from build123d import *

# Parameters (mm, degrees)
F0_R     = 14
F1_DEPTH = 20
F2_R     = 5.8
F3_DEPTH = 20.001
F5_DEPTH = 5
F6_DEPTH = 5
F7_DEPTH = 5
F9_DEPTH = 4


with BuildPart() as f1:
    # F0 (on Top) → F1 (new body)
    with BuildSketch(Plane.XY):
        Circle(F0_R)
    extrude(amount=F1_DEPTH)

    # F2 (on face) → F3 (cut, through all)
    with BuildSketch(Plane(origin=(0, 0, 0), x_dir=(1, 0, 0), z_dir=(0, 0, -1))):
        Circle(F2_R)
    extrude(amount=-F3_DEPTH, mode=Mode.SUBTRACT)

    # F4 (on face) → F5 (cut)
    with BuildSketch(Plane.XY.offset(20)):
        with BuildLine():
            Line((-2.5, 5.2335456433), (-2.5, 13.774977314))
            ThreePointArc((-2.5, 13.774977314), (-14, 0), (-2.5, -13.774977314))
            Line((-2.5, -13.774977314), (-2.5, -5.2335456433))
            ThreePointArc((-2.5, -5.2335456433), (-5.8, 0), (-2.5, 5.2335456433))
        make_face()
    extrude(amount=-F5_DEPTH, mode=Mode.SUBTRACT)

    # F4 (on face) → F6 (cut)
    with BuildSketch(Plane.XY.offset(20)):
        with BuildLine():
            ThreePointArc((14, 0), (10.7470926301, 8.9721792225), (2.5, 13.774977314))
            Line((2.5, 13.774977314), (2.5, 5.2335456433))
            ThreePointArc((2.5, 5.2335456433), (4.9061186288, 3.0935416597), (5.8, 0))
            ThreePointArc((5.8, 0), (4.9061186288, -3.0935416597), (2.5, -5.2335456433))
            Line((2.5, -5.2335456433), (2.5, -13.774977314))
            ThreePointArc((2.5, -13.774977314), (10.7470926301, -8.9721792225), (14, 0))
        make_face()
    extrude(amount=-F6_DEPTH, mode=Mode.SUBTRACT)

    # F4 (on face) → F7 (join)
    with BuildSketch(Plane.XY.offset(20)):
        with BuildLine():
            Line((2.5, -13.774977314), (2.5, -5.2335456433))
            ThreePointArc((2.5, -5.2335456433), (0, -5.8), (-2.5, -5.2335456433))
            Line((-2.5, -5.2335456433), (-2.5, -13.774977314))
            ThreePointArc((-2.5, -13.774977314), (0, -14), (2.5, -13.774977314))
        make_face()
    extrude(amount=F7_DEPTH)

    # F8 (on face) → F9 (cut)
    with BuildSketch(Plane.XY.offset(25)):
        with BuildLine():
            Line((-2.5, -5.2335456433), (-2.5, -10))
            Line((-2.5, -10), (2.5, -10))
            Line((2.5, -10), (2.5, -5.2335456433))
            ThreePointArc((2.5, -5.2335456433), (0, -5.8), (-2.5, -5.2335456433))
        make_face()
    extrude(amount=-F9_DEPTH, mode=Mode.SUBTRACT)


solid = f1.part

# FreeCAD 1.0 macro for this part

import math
import FreeCAD as App
import Part
import Sketcher

V = App.Vector

doc = App.newDocument("Part")
params = doc.addObject("Spreadsheet::Sheet", "Params")
for row, (alias, value) in enumerate([
    ("sketch1_diameter", "28 mm"),
    ("pad1_length", "20 mm"),
    ("sketch2_diameter", "11.6 mm"),
    ("sketch3_radius", "14 mm"),
    ("sketch3_radius2", "5.8 mm"),
    ("pocket2_length", "5 mm"),
    ("sketch4_radius", "14 mm"),
    ("sketch4_radius2", "5.8 mm"),
    ("pocket3_length", "5 mm"),
    ("sketch5_radius", "14 mm"),
    ("sketch5_radius2", "5.8 mm"),
    ("pad2_length", "5 mm"),
    ("sketch6_radius", "5.8 mm"),
    ("sketch6_width", "5 mm"),
    ("pocket4_length", "4 mm"),
], start=1):
    params.set(f"A{row}", alias)
    params.set(f"B{row}", "=" + value)
    params.setAlias(f"B{row}", alias)

body = doc.addObject("PartDesign::Body", "Body")

sketch1 = doc.addObject("Sketcher::SketchObject", "Sketch")
body.addObject(sketch1)
sketch1.AttachmentSupport = (doc.XY_Plane, [""])
sketch1.MapMode = "FlatFace"
sketch1.addGeometry(Part.Circle(V(0, 0, 0), V(0, 0, 1), 14), False)
sketch1.addConstraint([
    Sketcher.Constraint("Coincident", 0, 3, -1, 1),
    Sketcher.Constraint("Diameter", 0, 28.0),
])
sketch1.setExpression("Constraints[1]", "Params.sketch1_diameter")
pad1 = doc.addObject("PartDesign::Pad", "Pad")
body.addObject(pad1)
pad1.Profile = sketch1
pad1.setExpression("Length", "Params.pad1_length")

sketch2 = doc.addObject("Sketcher::SketchObject", "Sketch001")
body.addObject(sketch2)
sketch2.AttachmentSupport = (doc.XY_Plane, [""])
sketch2.MapMode = "FlatFace"
sketch2.addGeometry(Part.Circle(V(0, 0, 0), V(0, 0, 1), 6), False)
sketch2.addConstraint([
    Sketcher.Constraint("Coincident", 0, 3, -1, 1),
    Sketcher.Constraint("Diameter", 0, 11.6),
])
sketch2.setExpression("Constraints[1]", "Params.sketch2_diameter")
pocket1 = doc.addObject("PartDesign::Pocket", "Pocket")
body.addObject(pocket1)
pocket1.Profile = sketch2
pocket1.Type = "ThroughAll"
pocket1.Reversed = True

sketch3 = doc.addObject("Sketcher::SketchObject", "Sketch002")
body.addObject(sketch3)
sketch3.AttachmentSupport = (doc.XY_Plane, [""])
sketch3.MapMode = "FlatFace"
sketch3.AttachmentOffset = App.Placement(V(0, 0, 20), App.Rotation())
sketch3.addGeometry([
    Part.LineSegment(V(-2, 5, 0), V(-2, 14, 0)),
    Part.ArcOfCircle(Part.Circle(V(0, 0, 0), V(0, 0, 1), 14), math.radians(100), math.radians(260)),
    Part.LineSegment(V(-2, -14, 0), V(-2, -5, 0)),
    Part.ArcOfCircle(Part.Circle(V(0, 0, 0), V(0, 0, 1), 6), math.radians(116), math.radians(244)),
], False)
sketch3.addConstraint([
    Sketcher.Constraint("Coincident", 0, 2, 1, 1),
    Sketcher.Constraint("Coincident", 1, 2, 2, 1),
    Sketcher.Constraint("Coincident", 2, 2, 3, 2),
    Sketcher.Constraint("Coincident", 3, 1, 0, 1),
    Sketcher.Constraint("Vertical", 0),
    Sketcher.Constraint("Vertical", 2),
    Sketcher.Constraint("Coincident", 1, 3, -1, 1),
    Sketcher.Constraint("Coincident", 3, 3, -1, 1),
    Sketcher.Constraint("Vertical", 0, 2, 1, 2),
    Sketcher.Constraint("Radius", 1, 14.0),
    Sketcher.Constraint("Radius", 3, 5.8),
    Sketcher.Constraint("DistanceX", 0, 2, -1, 1, 2.5),
])
sketch3.setExpression("Constraints[9]", "Params.sketch3_radius")
sketch3.setExpression("Constraints[10]", "Params.sketch3_radius2")
pocket2 = doc.addObject("PartDesign::Pocket", "Pocket001")
body.addObject(pocket2)
pocket2.Profile = sketch3
pocket2.setExpression("Length", "Params.pocket2_length")

sketch4 = doc.addObject("Sketcher::SketchObject", "Sketch003")
body.addObject(sketch4)
sketch4.AttachmentSupport = (doc.XY_Plane, [""])
sketch4.MapMode = "FlatFace"
sketch4.AttachmentOffset = App.Placement(V(0, 0, 20), App.Rotation())
sketch4.addGeometry([
    Part.ArcOfCircle(Part.Circle(V(0, 0, 0), V(0, 0, 1), 14), math.radians(0), math.radians(80)),
    Part.LineSegment(V(2, 14, 0), V(2, 5, 0)),
    Part.ArcOfCircle(Part.Circle(V(0, 0, 0), V(0, 0, 1), 6), math.radians(0), math.radians(64)),
    Part.ArcOfCircle(Part.Circle(V(0, 0, 0), V(0, 0, 1), 6), math.radians(-64), math.radians(0)),
    Part.LineSegment(V(2, -5, 0), V(2, -14, 0)),
    Part.ArcOfCircle(Part.Circle(V(0, 0, 0), V(0, 0, 1), 14), math.radians(-80), math.radians(0)),
], False)
sketch4.addConstraint([
    Sketcher.Constraint("Coincident", 0, 2, 1, 1),
    Sketcher.Constraint("Coincident", 1, 2, 2, 2),
    Sketcher.Constraint("Tangent", 2, 1, 3, 2),
    Sketcher.Constraint("Coincident", 3, 1, 4, 1),
    Sketcher.Constraint("Coincident", 4, 2, 5, 1),
    Sketcher.Constraint("Tangent", 5, 2, 0, 1),
    Sketcher.Constraint("Vertical", 1),
    Sketcher.Constraint("Vertical", 4),
    Sketcher.Constraint("Coincident", 0, 3, -1, 1),
    Sketcher.Constraint("Coincident", 2, 3, -1, 1),
    Sketcher.Constraint("Equal", 2, 3),
    Sketcher.Constraint("Equal", 0, 5),
    Sketcher.Constraint("PointOnObject", 2, 1, -1),
    Sketcher.Constraint("PointOnObject", 5, 2, -1),
    Sketcher.Constraint("Vertical", 1, 2, 3, 1),
    Sketcher.Constraint("Radius", 0, 14.0),
    Sketcher.Constraint("Radius", 2, 5.8),
    Sketcher.Constraint("DistanceX", -1, 1, 0, 2, 2.5),
])
sketch4.setExpression("Constraints[15]", "Params.sketch4_radius")
sketch4.setExpression("Constraints[16]", "Params.sketch4_radius2")
pocket3 = doc.addObject("PartDesign::Pocket", "Pocket002")
body.addObject(pocket3)
pocket3.Profile = sketch4
pocket3.setExpression("Length", "Params.pocket3_length")

sketch5 = doc.addObject("Sketcher::SketchObject", "Sketch004")
body.addObject(sketch5)
sketch5.AttachmentSupport = (doc.XY_Plane, [""])
sketch5.MapMode = "FlatFace"
sketch5.AttachmentOffset = App.Placement(V(0, 0, 20), App.Rotation())
sketch5.addGeometry([
    Part.LineSegment(V(2, -14, 0), V(2, -5, 0)),
    Part.ArcOfCircle(Part.Circle(V(0, 0, 0), V(0, 0, 1), 6), math.radians(-116), math.radians(-64)),
    Part.LineSegment(V(-2, -5, 0), V(-2, -14, 0)),
    Part.ArcOfCircle(Part.Circle(V(0, 0, 0), V(0, 0, 1), 14), math.radians(-100), math.radians(-80)),
], False)
sketch5.addConstraint([
    Sketcher.Constraint("Coincident", 0, 2, 1, 2),
    Sketcher.Constraint("Coincident", 1, 1, 2, 1),
    Sketcher.Constraint("Coincident", 2, 2, 3, 1),
    Sketcher.Constraint("Coincident", 3, 2, 0, 1),
    Sketcher.Constraint("Vertical", 0),
    Sketcher.Constraint("Vertical", 2),
    Sketcher.Constraint("Coincident", 1, 3, -1, 1),
    Sketcher.Constraint("Coincident", 3, 3, -1, 1),
    Sketcher.Constraint("Horizontal", 0, 2, 1, 1),
    Sketcher.Constraint("Radius", 3, 14.0),
    Sketcher.Constraint("Radius", 1, 5.8),
    Sketcher.Constraint("DistanceX", 1, 1, 0, 2, 5.0),
])
sketch5.setExpression("Constraints[9]", "Params.sketch5_radius")
sketch5.setExpression("Constraints[10]", "Params.sketch5_radius2")
pad2 = doc.addObject("PartDesign::Pad", "Pad001")
body.addObject(pad2)
pad2.Profile = sketch5
pad2.setExpression("Length", "Params.pad2_length")

sketch6 = doc.addObject("Sketcher::SketchObject", "Sketch005")
body.addObject(sketch6)
sketch6.AttachmentSupport = (doc.XY_Plane, [""])
sketch6.MapMode = "FlatFace"
sketch6.AttachmentOffset = App.Placement(V(0, 0, 25), App.Rotation())
sketch6.addGeometry([
    Part.LineSegment(V(-2.5, -5.2, 0), V(-2.5, -10, 0)),
    Part.LineSegment(V(-2.5, -10, 0), V(2.5, -10, 0)),
    Part.LineSegment(V(2.5, -10, 0), V(2.5, -5.2, 0)),
    Part.ArcOfCircle(Part.Circle(V(0, 0, 0), V(0, 0, 1), 5.8), math.radians(-116), math.radians(-64)),
], False)
sketch6.addConstraint([
    Sketcher.Constraint("Coincident", 0, 2, 1, 1),
    Sketcher.Constraint("Coincident", 1, 2, 2, 1),
    Sketcher.Constraint("Coincident", 2, 2, 3, 2),
    Sketcher.Constraint("Coincident", 3, 1, 0, 1),
    Sketcher.Constraint("Vertical", 0),
    Sketcher.Constraint("Horizontal", 1),
    Sketcher.Constraint("Vertical", 2),
    Sketcher.Constraint("Coincident", 3, 3, -1, 1),
    Sketcher.Constraint("Horizontal", 2, 2, 3, 1),
    Sketcher.Constraint("Radius", 3, 5.8),
    Sketcher.Constraint("DistanceX", 1, 1, 1, 2, 5.0),
    Sketcher.Constraint("DistanceY", 0, 2, -1, 1, 10.0),
])
sketch6.setExpression("Constraints[9]", "Params.sketch6_radius")
sketch6.setExpression("Constraints[10]", "Params.sketch6_width")
pocket4 = doc.addObject("PartDesign::Pocket", "Pocket003")
body.addObject(pocket4)
pocket4.Profile = sketch6
pocket4.setExpression("Length", "Params.pocket4_length")

doc.recompute()
